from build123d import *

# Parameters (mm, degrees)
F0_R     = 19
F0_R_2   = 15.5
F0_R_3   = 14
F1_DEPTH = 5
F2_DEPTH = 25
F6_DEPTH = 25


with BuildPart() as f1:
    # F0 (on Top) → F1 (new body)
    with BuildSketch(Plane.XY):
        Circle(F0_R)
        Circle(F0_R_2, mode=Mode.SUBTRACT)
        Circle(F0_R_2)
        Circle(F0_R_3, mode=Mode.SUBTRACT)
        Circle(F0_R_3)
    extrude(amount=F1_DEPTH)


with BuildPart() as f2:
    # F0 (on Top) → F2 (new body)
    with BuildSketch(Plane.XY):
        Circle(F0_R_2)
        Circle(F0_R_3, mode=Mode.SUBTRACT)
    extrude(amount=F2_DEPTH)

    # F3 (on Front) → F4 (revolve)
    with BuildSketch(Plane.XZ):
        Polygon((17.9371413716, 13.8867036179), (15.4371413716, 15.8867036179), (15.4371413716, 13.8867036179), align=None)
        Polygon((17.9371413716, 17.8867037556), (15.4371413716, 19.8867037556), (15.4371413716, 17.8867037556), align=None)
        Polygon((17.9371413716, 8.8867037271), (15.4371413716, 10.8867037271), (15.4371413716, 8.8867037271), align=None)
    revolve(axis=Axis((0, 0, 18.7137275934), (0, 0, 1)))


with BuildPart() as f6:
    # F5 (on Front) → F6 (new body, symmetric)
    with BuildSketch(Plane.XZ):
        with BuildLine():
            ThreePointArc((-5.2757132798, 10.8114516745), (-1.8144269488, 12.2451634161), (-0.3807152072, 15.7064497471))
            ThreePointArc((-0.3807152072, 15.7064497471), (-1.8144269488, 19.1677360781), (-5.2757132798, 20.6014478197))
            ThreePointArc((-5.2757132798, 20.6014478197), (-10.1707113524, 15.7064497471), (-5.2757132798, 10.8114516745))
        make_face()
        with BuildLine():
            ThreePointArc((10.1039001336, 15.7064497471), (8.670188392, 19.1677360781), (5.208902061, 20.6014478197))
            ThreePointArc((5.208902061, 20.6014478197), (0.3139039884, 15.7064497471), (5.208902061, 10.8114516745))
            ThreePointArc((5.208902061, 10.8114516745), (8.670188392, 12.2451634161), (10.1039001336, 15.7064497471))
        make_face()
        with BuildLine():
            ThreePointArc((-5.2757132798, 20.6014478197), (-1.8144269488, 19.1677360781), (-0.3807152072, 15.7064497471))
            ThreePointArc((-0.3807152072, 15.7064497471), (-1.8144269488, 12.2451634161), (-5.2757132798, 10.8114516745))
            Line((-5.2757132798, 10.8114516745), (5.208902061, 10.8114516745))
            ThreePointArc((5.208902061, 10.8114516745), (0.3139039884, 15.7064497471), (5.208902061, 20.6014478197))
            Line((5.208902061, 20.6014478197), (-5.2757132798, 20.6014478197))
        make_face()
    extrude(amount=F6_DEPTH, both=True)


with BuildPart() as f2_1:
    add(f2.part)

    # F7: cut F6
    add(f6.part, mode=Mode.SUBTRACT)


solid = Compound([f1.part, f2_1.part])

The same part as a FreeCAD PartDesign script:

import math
import FreeCAD as App
import Part
import Sketcher

V = App.Vector

doc = App.newDocument("Part")
params = doc.addObject("Spreadsheet::Sheet", "Params")
for row, (alias, value) in enumerate([
    ("sketch1_diameter", "38 mm"),
    ("pad1_length", "5 mm"),
    ("sketch2_diameter", "31 mm"),
    ("sketch2_diameter2", "28 mm"),
    ("pad2_length", "25 mm"),
    ("sketch3_height", "2 mm"),
    ("sketch3_width", "2.5 mm"),
    ("revolution_angle", "360 deg"),
    ("pad3_length", "50 mm"),
], start=1):
    params.set(f"A{row}", alias)
    params.set(f"B{row}", "=" + value)
    params.setAlias(f"B{row}", alias)

body = doc.addObject("PartDesign::Body", "Body")

# Sketch on XY plane
sketch1 = body.newObject("Sketcher::SketchObject", "Sketch")
sketch1.AttachmentSupport = (doc.getObject("XY_Plane"), [""])
sketch1.MapMode = "FlatFace"
sketch1.addGeometry(Part.Circle(V(0, 0, 0), V(0, 0, 1), 19), False)
sketch1.addConstraint([
    Sketcher.Constraint("Coincident", 0, 3, -1, 1),
    Sketcher.Constraint("Diameter", 0, 38.0),
])
sketch1.setExpression("Constraints[1]", "Params.sketch1_diameter")
pad1 = body.newObject("PartDesign::Pad", "Pad")
pad1.Profile = sketch1
pad1.setExpression("Length", "Params.pad1_length")
body2 = doc.addObject("PartDesign::Body", "Body001")

# Sketch on XY plane
sketch2 = body2.newObject("Sketcher::SketchObject", "Sketch001")
sketch2.AttachmentSupport = (doc.getObject("XY_Plane001"), [""])
sketch2.MapMode = "FlatFace"
sketch2.addGeometry([
    Part.Circle(V(0, 0, 0), V(0, 0, 1), 15.5),
    Part.Circle(V(0, 0, 0), V(0, 0, 1), 14),
], False)
sketch2.addConstraint([
    Sketcher.Constraint("Coincident", 0, 3, -1, 1),
    Sketcher.Constraint("Coincident", 1, 3, -1, 1),
    Sketcher.Constraint("Diameter", 0, 31.0),
    Sketcher.Constraint("Diameter", 1, 28.0),
])
sketch2.setExpression("Constraints[2]", "Params.sketch2_diameter")
sketch2.setExpression("Constraints[3]", "Params.sketch2_diameter2")
pad2 = body2.newObject("PartDesign::Pad", "Pad001")
pad2.Profile = sketch2
pad2.setExpression("Length", "Params.pad2_length")

# Sketch on XZ plane
sketch3 = body2.newObject("Sketcher::SketchObject", "Sketch002")
sketch3.AttachmentSupport = (doc.getObject("XZ_Plane001"), [""])
sketch3.MapMode = "FlatFace"
sketch3.addGeometry([
    Part.LineSegment(V(17.937141, 13.886704, 0), V(15.437141, 15.886704, 0)),  # 0
    Part.LineSegment(V(15.437141, 15.886704, 0), V(15.437141, 13.886704, 0)),  # 1
    Part.LineSegment(V(15.437141, 13.886704, 0), V(17.937141, 13.886704, 0)),  # 2
    Part.LineSegment(V(17.937141, 17.886704, 0), V(15.437141, 19.886704, 0)),  # 3
    Part.LineSegment(V(15.437141, 19.886704, 0), V(15.437141, 17.886704, 0)),  # 4
    Part.LineSegment(V(15.437141, 17.886704, 0), V(17.937141, 17.886704, 0)),  # 5
    Part.LineSegment(V(17.937141, 8.886704, 0), V(15.437141, 10.886704, 0)),  # 6
    Part.LineSegment(V(15.437141, 10.886704, 0), V(15.437141, 8.886704, 0)),  # 7
    Part.LineSegment(V(15.437141, 8.886704, 0), V(17.937141, 8.886704, 0)),  # 8
], False)
sketch3.addConstraint([
    Sketcher.Constraint("Coincident", 0, 2, 1, 1),
    Sketcher.Constraint("Coincident", 1, 2, 2, 1),
    Sketcher.Constraint("Coincident", 2, 2, 0, 1),
    Sketcher.Constraint("Coincident", 3, 2, 4, 1),
    Sketcher.Constraint("Coincident", 4, 2, 5, 1),
    Sketcher.Constraint("Coincident", 5, 2, 3, 1),
    Sketcher.Constraint("Coincident", 6, 2, 7, 1),
    Sketcher.Constraint("Coincident", 7, 2, 8, 1),
    Sketcher.Constraint("Coincident", 8, 2, 6, 1),
    Sketcher.Constraint("Vertical", 1),
    Sketcher.Constraint("Horizontal", 2),
    Sketcher.Constraint("Vertical", 4),
    Sketcher.Constraint("Horizontal", 5),
    Sketcher.Constraint("Vertical", 7),
    Sketcher.Constraint("Horizontal", 8),
    Sketcher.Constraint("Parallel", 0, 3),
    Sketcher.Constraint("Parallel", 3, 6),
    Sketcher.Constraint("Vertical", 1, 2, 3, 2),
    Sketcher.Constraint("Vertical", 2, 2, 5, 2),
    Sketcher.Constraint("Vertical", 4, 2, 6, 2),
    Sketcher.Constraint("Vertical", 5, 2, 8, 2),
    Sketcher.Constraint("DistanceY", 1, 2, 1, 1, 2.0),
    Sketcher.Constraint("DistanceX", 2, 1, 2, 2, 2.5),
    Sketcher.Constraint("DistanceY", 0, 2, 3, 2, 4.0),
    Sketcher.Constraint("DistanceY", 6, 2, 1, 2, 3.0),
    Sketcher.Constraint("DistanceX", -1, 1, 0, 2, 15.437141),
    Sketcher.Constraint("DistanceY", -1, 1, 0, 2, 15.886704),
])
sketch3.setExpression("Constraints[21]", "Params.sketch3_height")
sketch3.setExpression("Constraints[22]", "Params.sketch3_width")
revolution = body2.newObject("PartDesign::Revolution", "Revolution")
revolution.Profile = sketch3
revolution.ReferenceAxis = (sketch3, ["V_Axis"])
revolution.setExpression("Angle", "Params.revolution_angle")
body3 = doc.addObject("PartDesign::Body", "Body002")

# Sketch on XZ plane
sketch4 = body3.newObject("Sketcher::SketchObject", "Sketch003")
sketch4.AttachmentSupport = (doc.getObject("XZ_Plane002"), [""])
sketch4.MapMode = "FlatFace"
sketch4.addGeometry([
    Part.ArcOfCircle(Part.Circle(V(-5.275713, 15.70645, 0), V(0, 0, 1), 4.894998), math.radians(90), math.radians(270)),  # 0
    Part.LineSegment(V(-5.275713, 10.811452, 0), V(5.208902, 10.811452, 0)),  # 1
    Part.ArcOfCircle(Part.Circle(V(5.208902, 15.70645, 0), V(0, 0, 1), 4.894998), math.radians(-90), math.radians(0)),  # 2
    Part.ArcOfCircle(Part.Circle(V(5.208902, 15.70645, 0), V(0, 0, 1), 4.894998), math.radians(0), math.radians(90)),  # 3
    Part.LineSegment(V(5.208902, 20.601448, 0), V(-5.275713, 20.601448, 0)),  # 4
], False)
sketch4.addConstraint([
    Sketcher.Constraint("Tangent", 0, 2, 1, 1),
    Sketcher.Constraint("Tangent", 1, 2, 2, 1),
    Sketcher.Constraint("Tangent", 2, 2, 3, 1),
    Sketcher.Constraint("Tangent", 3, 2, 4, 1),
    Sketcher.Constraint("Tangent", 4, 2, 0, 1),
    Sketcher.Constraint("Horizontal", 1),
    Sketcher.Constraint("Horizontal", 4),
    Sketcher.Constraint("Equal", 0, 2),
    Sketcher.Constraint("Horizontal", 3, 3, 2, 2),
    Sketcher.Constraint("Radius", 0, 4.894998),
    Sketcher.Constraint("DistanceX", -1, 1, 2, 2, 10.1039),
    Sketcher.Constraint("DistanceX", 1, 1, 1, 2, 10.484615),
    Sketcher.Constraint("DistanceY", -1, 1, 0, 3, 15.70645),
])
pad3 = body3.newObject("PartDesign::Pad", "Pad002")
pad3.Profile = sketch4
pad3.setExpression("Length", "Params.pad3_length")
pad3.Midplane = True
doc.recompute()

boolean = body2.newObject("PartDesign::Boolean", "Boolean")
boolean.Type = "Cut"
boolean.addObjects([body3])

doc.recompute()
